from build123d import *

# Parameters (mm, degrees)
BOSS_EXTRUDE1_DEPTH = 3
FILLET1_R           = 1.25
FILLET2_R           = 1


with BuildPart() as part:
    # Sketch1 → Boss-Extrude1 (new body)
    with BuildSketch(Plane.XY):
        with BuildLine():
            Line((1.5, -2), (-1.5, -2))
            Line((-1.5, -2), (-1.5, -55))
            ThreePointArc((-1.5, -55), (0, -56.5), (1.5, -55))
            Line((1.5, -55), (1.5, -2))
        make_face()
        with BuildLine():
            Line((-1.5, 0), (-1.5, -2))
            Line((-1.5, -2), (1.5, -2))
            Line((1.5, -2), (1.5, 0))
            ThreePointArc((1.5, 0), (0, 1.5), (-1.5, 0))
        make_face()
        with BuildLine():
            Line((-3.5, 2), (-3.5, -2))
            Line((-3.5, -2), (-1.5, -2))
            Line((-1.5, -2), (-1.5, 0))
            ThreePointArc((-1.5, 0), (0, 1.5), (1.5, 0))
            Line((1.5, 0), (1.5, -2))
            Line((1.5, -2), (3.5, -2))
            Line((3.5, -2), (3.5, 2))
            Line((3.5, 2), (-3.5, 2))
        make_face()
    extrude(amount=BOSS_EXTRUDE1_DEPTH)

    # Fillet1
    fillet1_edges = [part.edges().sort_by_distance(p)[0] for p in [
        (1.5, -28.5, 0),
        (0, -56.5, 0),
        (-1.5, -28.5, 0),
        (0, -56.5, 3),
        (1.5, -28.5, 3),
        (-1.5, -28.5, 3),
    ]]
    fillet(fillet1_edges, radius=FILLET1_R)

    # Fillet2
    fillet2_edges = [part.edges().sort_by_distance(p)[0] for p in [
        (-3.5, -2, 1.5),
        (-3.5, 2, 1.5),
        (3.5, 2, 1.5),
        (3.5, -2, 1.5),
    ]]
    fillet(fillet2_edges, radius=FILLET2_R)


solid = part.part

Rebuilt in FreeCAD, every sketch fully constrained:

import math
import FreeCAD as App
import Part
import Sketcher

V = App.Vector
Q = App.Units.Quantity


def edges_at(feature, points):
    """Names of the edges that pass closest to the given points."""
    edges = feature.Shape.Edges
    near = lambda p: min(range(len(edges)), key=lambda i: edges[i].distToShape(Part.Vertex(*p))[0])
    return sorted({f"Edge{near(p) + 1}" for p in points})

doc = App.newDocument("Part")
body = doc.addObject("PartDesign::Body", "Body")

# Sketch on XY plane
sketch1 = doc.addObject("Sketcher::SketchObject", "Sketch")
body.addObject(sketch1)
sketch1.AttachmentSupport = (doc.XY_Plane, [""])
sketch1.MapMode = "FlatFace"
sketch1.addGeometry([
    Part.ArcOfCircle(Part.Circle(V(0, -55, 0), V(0, 0, 1), 1.5), math.radians(180), math.radians(360)),  # 0
    Part.LineSegment(V(1.5, -55, 0), V(1.5, -2, 0)),  # 1
    Part.LineSegment(V(1.5, -2, 0), V(3.5, -2, 0)),  # 2
    Part.LineSegment(V(3.5, -2, 0), V(3.5, 2, 0)),  # 3
    Part.LineSegment(V(3.5, 2, 0), V(-3.5, 2, 0)),  # 4
    Part.LineSegment(V(-3.5, 2, 0), V(-3.5, -2, 0)),  # 5
    Part.LineSegment(V(-3.5, -2, 0), V(-1.5, -2, 0)),  # 6
    Part.LineSegment(V(-1.5, -2, 0), V(-1.5, -55, 0)),  # 7
], False)
sketch1.addConstraint([
    Sketcher.Constraint("Tangent", 0, 2, 1, 1),
    Sketcher.Constraint("Coincident", 1, 2, 2, 1),
    Sketcher.Constraint("Coincident", 2, 2, 3, 1),
    Sketcher.Constraint("Coincident", 3, 2, 4, 1),
    Sketcher.Constraint("Coincident", 4, 2, 5, 1),
    Sketcher.Constraint("Coincident", 5, 2, 6, 1),
    Sketcher.Constraint("Coincident", 6, 2, 7, 1),
    Sketcher.Constraint("Tangent", 7, 2, 0, 1),
    Sketcher.Constraint("Vertical", 1),
    Sketcher.Constraint("Horizontal", 2),
    Sketcher.Constraint("Vertical", 3),
    Sketcher.Constraint("Horizontal", 4),
    Sketcher.Constraint("Vertical", 5),
    Sketcher.Constraint("Horizontal", 6),
    Sketcher.Constraint("Vertical", 7),
    Sketcher.Constraint("Symmetric", 2, 2, 4, 2, -1, 1),
    Sketcher.Constraint("Symmetric", 1, 2, 6, 2, -2),
    Sketcher.Constraint("Radius", 0, Q("1.5 mm")),
    Sketcher.Constraint("DistanceX", 2, 1, 2, 2, Q("2 mm")),
    Sketcher.Constraint("DistanceY", 1, 1, 1, 2, Q("53 mm")),
    Sketcher.Constraint("DistanceY", 3, 1, 3, 2, Q("4 mm")),
])
pad1 = doc.addObject("PartDesign::Pad", "Pad")
body.addObject(pad1)
pad1.Profile = sketch1
pad1.Length = 3
doc.recompute()

fillet = doc.addObject("PartDesign::Fillet", "Fillet")
body.addObject(fillet)
fillet.Base = (pad1, edges_at(pad1, [
    (1.5, -28.5, 0),
    (0, -56.5, 0),
    (-1.5, -28.5, 0),
    (0, -56.5, 3),
    (1.5, -28.5, 3),
    (-1.5, -28.5, 3),
]))
fillet.Radius = 1.25
doc.recompute()

fillet2 = doc.addObject("PartDesign::Fillet", "Fillet001")
body.addObject(fillet2)
fillet2.Base = (fillet, edges_at(fillet, [
    (-3.5, -2, 1.5),
    (-3.5, 2, 1.5),
    (3.5, 2, 1.5),
    (3.5, -2, 1.5),
]))
fillet2.Radius = 1

doc.recompute()
